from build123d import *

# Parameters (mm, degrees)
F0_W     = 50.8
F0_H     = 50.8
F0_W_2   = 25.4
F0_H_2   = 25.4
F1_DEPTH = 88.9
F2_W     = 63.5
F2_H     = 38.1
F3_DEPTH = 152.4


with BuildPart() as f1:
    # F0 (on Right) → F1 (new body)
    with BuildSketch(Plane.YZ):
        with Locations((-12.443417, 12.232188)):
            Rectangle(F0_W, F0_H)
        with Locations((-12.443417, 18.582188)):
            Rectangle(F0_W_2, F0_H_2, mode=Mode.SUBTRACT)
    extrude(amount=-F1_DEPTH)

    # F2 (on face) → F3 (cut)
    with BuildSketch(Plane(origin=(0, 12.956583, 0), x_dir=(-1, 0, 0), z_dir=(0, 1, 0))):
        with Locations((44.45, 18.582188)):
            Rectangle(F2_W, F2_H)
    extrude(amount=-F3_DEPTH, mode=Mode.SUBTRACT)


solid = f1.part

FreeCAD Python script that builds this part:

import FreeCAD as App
import Part
import Sketcher
from FreeCAD import Vector
Q = App.Units.Quantity


def add_polygon(sketch, points):
    """Adds a closed chain of lines whose ends are joined by coincident constraints."""
    first, n = sketch.GeometryCount, len(points)
    for a, b in zip(points, points[1:] + points[:1]):
        sketch.addGeometry(Part.LineSegment(App.Vector(*a, 0), App.Vector(*b, 0)), False)
    for i in range(n):
        sketch.addConstraint(Sketcher.Constraint("Coincident", first + i, 2, first + (i + 1) % n, 1))

doc = App.newDocument("Part")
body = doc.addObject("PartDesign::Body", "Body")

sketch1 = doc.addObject("Sketcher::SketchObject", "Sketch")
body.addObject(sketch1)
sketch1.AttachmentSupport = (doc.YZ_Plane, [""])
sketch1.MapMode = "FlatFace"
add_polygon(sketch1, [(-37.843417, 37.632188), (-37.843417, -13.167812), (12.956583, -13.167812), (12.956583, 37.632188)])
add_polygon(sketch1, [(0.256583, 5.882188), (-25.143417, 5.882188), (-25.143417, 31.282188), (0.256583, 31.282188)])
sketch1.addConstraint([
    Sketcher.Constraint("Vertical", 0),
    Sketcher.Constraint("Horizontal", 1),
    Sketcher.Constraint("Vertical", 2),
    Sketcher.Constraint("Horizontal", 3),
    Sketcher.Constraint("Horizontal", 4),
    Sketcher.Constraint("Vertical", 5),
    Sketcher.Constraint("Horizontal", 6),
    Sketcher.Constraint("Vertical", 7),
    Sketcher.Constraint("Equal", 3, 0),
    Sketcher.Constraint("Equal", 6, 5),
    Sketcher.Constraint("DistanceX", 1, 1, 1, 2, Q("2 in")),
    Sketcher.Constraint("DistanceX", 4, 2, 4, 1, Q("1 in")),
    Sketcher.Constraint("DistanceX", 0, 2, 4, 2, Q("0.5 in")),
    Sketcher.Constraint("DistanceY", 0, 2, 4, 2, Q("0.75 in")),
    Sketcher.Constraint("DistanceY", -1, 1, 4, 2, 5.882188),
    Sketcher.Constraint("DistanceX", 0, 2, -1, 1, 37.843417),
])
pad1 = doc.addObject("PartDesign::Pad", "Pad")
body.addObject(pad1)
pad1.Profile = sketch1
pad1.Length = Q("3.5 in")
pad1.Reversed = True

sketch2 = doc.addObject("Sketcher::SketchObject", "Sketch001")
body.addObject(sketch2)
sketch2.AttachmentSupport = (doc.XZ_Plane, [""])
sketch2.MapMode = "FlatFace"
sketch2.AttachmentOffset = App.Placement(Vector(0, 0, -12.956583), App.Rotation())
add_polygon(sketch2, [(-12.7, 37.632188), (-12.7, -0.467812), (-76.2, -0.467812), (-76.2, 37.632188)])
sketch2.addConstraint([
    Sketcher.Constraint("Vertical", 0),
    Sketcher.Constraint("Horizontal", 1),
    Sketcher.Constraint("Vertical", 2),
    Sketcher.Constraint("Horizontal", 3),
    Sketcher.Constraint("DistanceX", 1, 2, 1, 1, Q("2.5 in")),
    Sketcher.Constraint("DistanceY", 0, 2, 0, 1, Q("1.5 in")),
    Sketcher.Constraint("DistanceX", 1, 2, -1, 1, Q("3 in")),
    Sketcher.Constraint("DistanceY", 0, 2, -1, 1, 0.467812),
])
pocket1 = doc.addObject("PartDesign::Pocket", "Pocket")
body.addObject(pocket1)
pocket1.Profile = sketch2
pocket1.Length = Q("6 in")
pocket1.Reversed = True

doc.recompute()
